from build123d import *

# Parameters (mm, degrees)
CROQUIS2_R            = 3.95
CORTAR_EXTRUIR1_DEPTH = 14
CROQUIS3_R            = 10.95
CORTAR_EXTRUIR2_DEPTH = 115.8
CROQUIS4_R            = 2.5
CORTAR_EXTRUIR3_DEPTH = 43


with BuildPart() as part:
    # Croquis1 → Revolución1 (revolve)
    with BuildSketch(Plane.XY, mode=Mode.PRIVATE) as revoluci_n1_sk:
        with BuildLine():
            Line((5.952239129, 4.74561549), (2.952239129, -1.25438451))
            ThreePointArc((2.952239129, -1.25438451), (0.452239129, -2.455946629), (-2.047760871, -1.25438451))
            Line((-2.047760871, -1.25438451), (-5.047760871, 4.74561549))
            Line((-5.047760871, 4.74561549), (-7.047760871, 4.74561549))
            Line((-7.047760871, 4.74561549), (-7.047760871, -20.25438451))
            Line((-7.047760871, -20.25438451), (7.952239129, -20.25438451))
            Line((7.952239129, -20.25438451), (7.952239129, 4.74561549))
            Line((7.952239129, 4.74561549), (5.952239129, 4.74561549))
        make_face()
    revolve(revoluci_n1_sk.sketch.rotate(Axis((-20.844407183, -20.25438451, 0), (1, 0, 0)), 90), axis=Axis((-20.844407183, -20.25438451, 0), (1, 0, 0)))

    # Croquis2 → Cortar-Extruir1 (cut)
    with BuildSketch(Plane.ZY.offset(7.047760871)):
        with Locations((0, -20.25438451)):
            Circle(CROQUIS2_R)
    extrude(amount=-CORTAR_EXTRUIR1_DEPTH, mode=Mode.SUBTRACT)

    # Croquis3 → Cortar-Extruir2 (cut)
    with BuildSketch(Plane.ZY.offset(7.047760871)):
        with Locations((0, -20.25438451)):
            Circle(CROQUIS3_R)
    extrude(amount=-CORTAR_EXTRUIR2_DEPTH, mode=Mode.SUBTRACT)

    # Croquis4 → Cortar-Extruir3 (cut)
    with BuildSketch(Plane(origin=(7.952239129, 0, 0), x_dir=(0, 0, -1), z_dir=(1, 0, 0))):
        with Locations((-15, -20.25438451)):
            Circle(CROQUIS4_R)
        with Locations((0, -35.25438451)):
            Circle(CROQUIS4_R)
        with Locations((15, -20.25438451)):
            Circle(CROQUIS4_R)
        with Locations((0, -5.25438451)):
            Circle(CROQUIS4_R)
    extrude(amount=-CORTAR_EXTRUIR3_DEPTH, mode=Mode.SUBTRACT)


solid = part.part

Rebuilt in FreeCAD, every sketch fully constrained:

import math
import FreeCAD as App
import Part
import Sketcher

V = App.Vector
Q = App.Units.Quantity

doc = App.newDocument("Part")
body = doc.addObject("PartDesign::Body", "Body")

# Sketch on XY plane
sketch1 = body.newObject("Sketcher::SketchObject", "Sketch")
sketch1.AttachmentSupport = (doc.getObject("XY_Plane"), [""])
sketch1.MapMode = "FlatFace"
sketch1.addGeometry([
    Part.LineSegment(V(6, 4.7, 0), V(3, -1.3, 0)),  # 0
    Part.ArcOfCircle(Part.Circle(V(0.5, 0.7, 0), V(0, 0, 1), 3.2), math.radians(-141), math.radians(-39)),  # 1
    Part.LineSegment(V(-2, -1.3, 0), V(-5, 4.7, 0)),  # 2
    Part.LineSegment(V(-5, 4.7, 0), V(-7, 4.7, 0)),  # 3
    Part.LineSegment(V(-7, 4.7, 0), V(-7, -20.3, 0)),  # 4
    Part.LineSegment(V(-7, -20.3, 0), V(8, -20.3, 0)),  # 5
    Part.LineSegment(V(8, -20.3, 0), V(8, 4.7, 0)),  # 6
    Part.LineSegment(V(8, 4.7, 0), V(6, 4.7, 0)),  # 7
], False)
sketch1.addGeometry(Part.LineSegment(V(-7, -20.3, 0), V(8, -20.3, 0)), True)  # axis
sketch1.addConstraint([
    Sketcher.Constraint("Coincident", 0, 2, 1, 2),
    Sketcher.Constraint("Coincident", 1, 1, 2, 1),
    Sketcher.Constraint("Coincident", 2, 2, 3, 1),
    Sketcher.Constraint("Coincident", 3, 2, 4, 1),
    Sketcher.Constraint("Coincident", 4, 2, 5, 1),
    Sketcher.Constraint("Coincident", 5, 2, 6, 1),
    Sketcher.Constraint("Coincident", 6, 2, 7, 1),
    Sketcher.Constraint("Coincident", 7, 2, 0, 1),
    Sketcher.Constraint("Horizontal", 3),
    Sketcher.Constraint("Vertical", 4),
    Sketcher.Constraint("Horizontal", 5),
    Sketcher.Constraint("Vertical", 6),
    Sketcher.Constraint("Horizontal", 7),
    Sketcher.Constraint("Horizontal", 8),
    Sketcher.Constraint("Coincident", 8, 1, 4, 2),
    Sketcher.Constraint("Horizontal", 0, 2, 1, 1),
    Sketcher.Constraint("Horizontal", 3, 2, 6, 2),
    Sketcher.Constraint("Vertical", 6, 2, 8, 2),
    Sketcher.Constraint("Equal", 3, 7),
    Sketcher.Constraint("Equal", 0, 2),
    Sketcher.Constraint("DistanceX", 3, 2, 3, 1, Q("2 mm")),
    Sketcher.Constraint("DistanceX", 5, 1, 5, 2, Q("15 mm")),
    Sketcher.Constraint("DistanceY", 4, 2, 4, 1, Q("25 mm")),
    Sketcher.Constraint("DistanceY", 0, 2, 1, 3, Q("2 mm")),
    Sketcher.Constraint("DistanceX", 1, 1, 0, 2, Q("5 mm")),
    Sketcher.Constraint("DistanceY", 1, 1, 2, 2, Q("6 mm")),
    Sketcher.Constraint("DistanceX", -1, 1, 1, 3, Q("0.452239 mm")),
    Sketcher.Constraint("DistanceY", -1, 1, 1, 3, Q("0.745615 mm")),
])
revolution = body.newObject("PartDesign::Revolution", "Revolution")
revolution.Profile = sketch1
revolution.ReferenceAxis = (sketch1, ["Axis0"])
revolution.Angle = 360

# Sketch on YZ plane
sketch2 = body.newObject("Sketcher::SketchObject", "Sketch001")
sketch2.AttachmentSupport = (doc.getObject("YZ_Plane"), [""])
sketch2.MapMode = "FlatFace"
sketch2.AttachmentOffset = App.Placement(V(0, 0, -7.047761), App.Rotation())
sketch2.addGeometry(Part.Circle(V(-20.3, 0, 0), V(0, 0, 1), 4), False)
sketch2.addConstraint([
    Sketcher.Constraint("PointOnObject", 0, 3, -1),
    Sketcher.Constraint("Diameter", 0, Q("7.9 mm")),
    Sketcher.Constraint("DistanceX", 0, 3, -1, 1, Q("20.254385 mm")),
])
pocket1 = body.newObject("PartDesign::Pocket", "Pocket")
pocket1.Profile = sketch2
pocket1.Length = 14
pocket1.Reversed = True

# Sketch on YZ plane
sketch3 = body.newObject("Sketcher::SketchObject", "Sketch002")
sketch3.AttachmentSupport = (doc.getObject("YZ_Plane"), [""])
sketch3.MapMode = "FlatFace"
sketch3.AttachmentOffset = App.Placement(V(0, 0, -7.047761), App.Rotation())
sketch3.addGeometry(Part.Circle(V(-20, 0, 0), V(0, 0, 1), 11), False)
sketch3.addConstraint([
    Sketcher.Constraint("PointOnObject", 0, 3, -1),
    Sketcher.Constraint("Diameter", 0, Q("21.9 mm")),
    Sketcher.Constraint("DistanceX", 0, 3, -1, 1, Q("20.254385 mm")),
])
pocket2 = body.newObject("PartDesign::Pocket", "Pocket001")
pocket2.Profile = sketch3
pocket2.Length = 115.8
pocket2.Reversed = True

# Sketch on YZ plane
sketch4 = body.newObject("Sketcher::SketchObject", "Sketch003")
sketch4.AttachmentSupport = (doc.getObject("YZ_Plane"), [""])
sketch4.MapMode = "FlatFace"
sketch4.AttachmentOffset = App.Placement(V(0, 0, 7.952239), App.Rotation())
sketch4.addGeometry([
    Part.Circle(V(-20.3, 15, 0), V(0, 0, 1), 2.5),
    Part.Circle(V(-35.3, 0, 0), V(0, 0, 1), 2.5),
    Part.Circle(V(-20.3, -15, 0), V(0, 0, 1), 2.5),
    Part.Circle(V(-5.3, 0, 0), V(0, 0, 1), 2.5),
], False)
sketch4.addConstraint([
    Sketcher.Constraint("Equal", 0, 1),
    Sketcher.Constraint("Equal", 1, 2),
    Sketcher.Constraint("Equal", 2, 3),
    Sketcher.Constraint("Symmetric", 0, 3, 2, 3, -1),
    Sketcher.Constraint("PointOnObject", 1, 3, -1),
    Sketcher.Constraint("PointOnObject", 3, 3, -1),
    Sketcher.Constraint("Diameter", 0, Q("5 mm")),
    Sketcher.Constraint("DistanceY", -1, 1, 0, 3, Q("15 mm")),
    Sketcher.Constraint("DistanceX", 1, 3, 0, 3, Q("15 mm")),
    Sketcher.Constraint("DistanceX", 0, 3, 3, 3, Q("15 mm")),
    Sketcher.Constraint("DistanceX", 0, 3, -1, 1, Q("20.254385 mm")),
])
pocket3 = body.newObject("PartDesign::Pocket", "Pocket002")
pocket3.Profile = sketch4
pocket3.Length = 43

doc.recompute()
